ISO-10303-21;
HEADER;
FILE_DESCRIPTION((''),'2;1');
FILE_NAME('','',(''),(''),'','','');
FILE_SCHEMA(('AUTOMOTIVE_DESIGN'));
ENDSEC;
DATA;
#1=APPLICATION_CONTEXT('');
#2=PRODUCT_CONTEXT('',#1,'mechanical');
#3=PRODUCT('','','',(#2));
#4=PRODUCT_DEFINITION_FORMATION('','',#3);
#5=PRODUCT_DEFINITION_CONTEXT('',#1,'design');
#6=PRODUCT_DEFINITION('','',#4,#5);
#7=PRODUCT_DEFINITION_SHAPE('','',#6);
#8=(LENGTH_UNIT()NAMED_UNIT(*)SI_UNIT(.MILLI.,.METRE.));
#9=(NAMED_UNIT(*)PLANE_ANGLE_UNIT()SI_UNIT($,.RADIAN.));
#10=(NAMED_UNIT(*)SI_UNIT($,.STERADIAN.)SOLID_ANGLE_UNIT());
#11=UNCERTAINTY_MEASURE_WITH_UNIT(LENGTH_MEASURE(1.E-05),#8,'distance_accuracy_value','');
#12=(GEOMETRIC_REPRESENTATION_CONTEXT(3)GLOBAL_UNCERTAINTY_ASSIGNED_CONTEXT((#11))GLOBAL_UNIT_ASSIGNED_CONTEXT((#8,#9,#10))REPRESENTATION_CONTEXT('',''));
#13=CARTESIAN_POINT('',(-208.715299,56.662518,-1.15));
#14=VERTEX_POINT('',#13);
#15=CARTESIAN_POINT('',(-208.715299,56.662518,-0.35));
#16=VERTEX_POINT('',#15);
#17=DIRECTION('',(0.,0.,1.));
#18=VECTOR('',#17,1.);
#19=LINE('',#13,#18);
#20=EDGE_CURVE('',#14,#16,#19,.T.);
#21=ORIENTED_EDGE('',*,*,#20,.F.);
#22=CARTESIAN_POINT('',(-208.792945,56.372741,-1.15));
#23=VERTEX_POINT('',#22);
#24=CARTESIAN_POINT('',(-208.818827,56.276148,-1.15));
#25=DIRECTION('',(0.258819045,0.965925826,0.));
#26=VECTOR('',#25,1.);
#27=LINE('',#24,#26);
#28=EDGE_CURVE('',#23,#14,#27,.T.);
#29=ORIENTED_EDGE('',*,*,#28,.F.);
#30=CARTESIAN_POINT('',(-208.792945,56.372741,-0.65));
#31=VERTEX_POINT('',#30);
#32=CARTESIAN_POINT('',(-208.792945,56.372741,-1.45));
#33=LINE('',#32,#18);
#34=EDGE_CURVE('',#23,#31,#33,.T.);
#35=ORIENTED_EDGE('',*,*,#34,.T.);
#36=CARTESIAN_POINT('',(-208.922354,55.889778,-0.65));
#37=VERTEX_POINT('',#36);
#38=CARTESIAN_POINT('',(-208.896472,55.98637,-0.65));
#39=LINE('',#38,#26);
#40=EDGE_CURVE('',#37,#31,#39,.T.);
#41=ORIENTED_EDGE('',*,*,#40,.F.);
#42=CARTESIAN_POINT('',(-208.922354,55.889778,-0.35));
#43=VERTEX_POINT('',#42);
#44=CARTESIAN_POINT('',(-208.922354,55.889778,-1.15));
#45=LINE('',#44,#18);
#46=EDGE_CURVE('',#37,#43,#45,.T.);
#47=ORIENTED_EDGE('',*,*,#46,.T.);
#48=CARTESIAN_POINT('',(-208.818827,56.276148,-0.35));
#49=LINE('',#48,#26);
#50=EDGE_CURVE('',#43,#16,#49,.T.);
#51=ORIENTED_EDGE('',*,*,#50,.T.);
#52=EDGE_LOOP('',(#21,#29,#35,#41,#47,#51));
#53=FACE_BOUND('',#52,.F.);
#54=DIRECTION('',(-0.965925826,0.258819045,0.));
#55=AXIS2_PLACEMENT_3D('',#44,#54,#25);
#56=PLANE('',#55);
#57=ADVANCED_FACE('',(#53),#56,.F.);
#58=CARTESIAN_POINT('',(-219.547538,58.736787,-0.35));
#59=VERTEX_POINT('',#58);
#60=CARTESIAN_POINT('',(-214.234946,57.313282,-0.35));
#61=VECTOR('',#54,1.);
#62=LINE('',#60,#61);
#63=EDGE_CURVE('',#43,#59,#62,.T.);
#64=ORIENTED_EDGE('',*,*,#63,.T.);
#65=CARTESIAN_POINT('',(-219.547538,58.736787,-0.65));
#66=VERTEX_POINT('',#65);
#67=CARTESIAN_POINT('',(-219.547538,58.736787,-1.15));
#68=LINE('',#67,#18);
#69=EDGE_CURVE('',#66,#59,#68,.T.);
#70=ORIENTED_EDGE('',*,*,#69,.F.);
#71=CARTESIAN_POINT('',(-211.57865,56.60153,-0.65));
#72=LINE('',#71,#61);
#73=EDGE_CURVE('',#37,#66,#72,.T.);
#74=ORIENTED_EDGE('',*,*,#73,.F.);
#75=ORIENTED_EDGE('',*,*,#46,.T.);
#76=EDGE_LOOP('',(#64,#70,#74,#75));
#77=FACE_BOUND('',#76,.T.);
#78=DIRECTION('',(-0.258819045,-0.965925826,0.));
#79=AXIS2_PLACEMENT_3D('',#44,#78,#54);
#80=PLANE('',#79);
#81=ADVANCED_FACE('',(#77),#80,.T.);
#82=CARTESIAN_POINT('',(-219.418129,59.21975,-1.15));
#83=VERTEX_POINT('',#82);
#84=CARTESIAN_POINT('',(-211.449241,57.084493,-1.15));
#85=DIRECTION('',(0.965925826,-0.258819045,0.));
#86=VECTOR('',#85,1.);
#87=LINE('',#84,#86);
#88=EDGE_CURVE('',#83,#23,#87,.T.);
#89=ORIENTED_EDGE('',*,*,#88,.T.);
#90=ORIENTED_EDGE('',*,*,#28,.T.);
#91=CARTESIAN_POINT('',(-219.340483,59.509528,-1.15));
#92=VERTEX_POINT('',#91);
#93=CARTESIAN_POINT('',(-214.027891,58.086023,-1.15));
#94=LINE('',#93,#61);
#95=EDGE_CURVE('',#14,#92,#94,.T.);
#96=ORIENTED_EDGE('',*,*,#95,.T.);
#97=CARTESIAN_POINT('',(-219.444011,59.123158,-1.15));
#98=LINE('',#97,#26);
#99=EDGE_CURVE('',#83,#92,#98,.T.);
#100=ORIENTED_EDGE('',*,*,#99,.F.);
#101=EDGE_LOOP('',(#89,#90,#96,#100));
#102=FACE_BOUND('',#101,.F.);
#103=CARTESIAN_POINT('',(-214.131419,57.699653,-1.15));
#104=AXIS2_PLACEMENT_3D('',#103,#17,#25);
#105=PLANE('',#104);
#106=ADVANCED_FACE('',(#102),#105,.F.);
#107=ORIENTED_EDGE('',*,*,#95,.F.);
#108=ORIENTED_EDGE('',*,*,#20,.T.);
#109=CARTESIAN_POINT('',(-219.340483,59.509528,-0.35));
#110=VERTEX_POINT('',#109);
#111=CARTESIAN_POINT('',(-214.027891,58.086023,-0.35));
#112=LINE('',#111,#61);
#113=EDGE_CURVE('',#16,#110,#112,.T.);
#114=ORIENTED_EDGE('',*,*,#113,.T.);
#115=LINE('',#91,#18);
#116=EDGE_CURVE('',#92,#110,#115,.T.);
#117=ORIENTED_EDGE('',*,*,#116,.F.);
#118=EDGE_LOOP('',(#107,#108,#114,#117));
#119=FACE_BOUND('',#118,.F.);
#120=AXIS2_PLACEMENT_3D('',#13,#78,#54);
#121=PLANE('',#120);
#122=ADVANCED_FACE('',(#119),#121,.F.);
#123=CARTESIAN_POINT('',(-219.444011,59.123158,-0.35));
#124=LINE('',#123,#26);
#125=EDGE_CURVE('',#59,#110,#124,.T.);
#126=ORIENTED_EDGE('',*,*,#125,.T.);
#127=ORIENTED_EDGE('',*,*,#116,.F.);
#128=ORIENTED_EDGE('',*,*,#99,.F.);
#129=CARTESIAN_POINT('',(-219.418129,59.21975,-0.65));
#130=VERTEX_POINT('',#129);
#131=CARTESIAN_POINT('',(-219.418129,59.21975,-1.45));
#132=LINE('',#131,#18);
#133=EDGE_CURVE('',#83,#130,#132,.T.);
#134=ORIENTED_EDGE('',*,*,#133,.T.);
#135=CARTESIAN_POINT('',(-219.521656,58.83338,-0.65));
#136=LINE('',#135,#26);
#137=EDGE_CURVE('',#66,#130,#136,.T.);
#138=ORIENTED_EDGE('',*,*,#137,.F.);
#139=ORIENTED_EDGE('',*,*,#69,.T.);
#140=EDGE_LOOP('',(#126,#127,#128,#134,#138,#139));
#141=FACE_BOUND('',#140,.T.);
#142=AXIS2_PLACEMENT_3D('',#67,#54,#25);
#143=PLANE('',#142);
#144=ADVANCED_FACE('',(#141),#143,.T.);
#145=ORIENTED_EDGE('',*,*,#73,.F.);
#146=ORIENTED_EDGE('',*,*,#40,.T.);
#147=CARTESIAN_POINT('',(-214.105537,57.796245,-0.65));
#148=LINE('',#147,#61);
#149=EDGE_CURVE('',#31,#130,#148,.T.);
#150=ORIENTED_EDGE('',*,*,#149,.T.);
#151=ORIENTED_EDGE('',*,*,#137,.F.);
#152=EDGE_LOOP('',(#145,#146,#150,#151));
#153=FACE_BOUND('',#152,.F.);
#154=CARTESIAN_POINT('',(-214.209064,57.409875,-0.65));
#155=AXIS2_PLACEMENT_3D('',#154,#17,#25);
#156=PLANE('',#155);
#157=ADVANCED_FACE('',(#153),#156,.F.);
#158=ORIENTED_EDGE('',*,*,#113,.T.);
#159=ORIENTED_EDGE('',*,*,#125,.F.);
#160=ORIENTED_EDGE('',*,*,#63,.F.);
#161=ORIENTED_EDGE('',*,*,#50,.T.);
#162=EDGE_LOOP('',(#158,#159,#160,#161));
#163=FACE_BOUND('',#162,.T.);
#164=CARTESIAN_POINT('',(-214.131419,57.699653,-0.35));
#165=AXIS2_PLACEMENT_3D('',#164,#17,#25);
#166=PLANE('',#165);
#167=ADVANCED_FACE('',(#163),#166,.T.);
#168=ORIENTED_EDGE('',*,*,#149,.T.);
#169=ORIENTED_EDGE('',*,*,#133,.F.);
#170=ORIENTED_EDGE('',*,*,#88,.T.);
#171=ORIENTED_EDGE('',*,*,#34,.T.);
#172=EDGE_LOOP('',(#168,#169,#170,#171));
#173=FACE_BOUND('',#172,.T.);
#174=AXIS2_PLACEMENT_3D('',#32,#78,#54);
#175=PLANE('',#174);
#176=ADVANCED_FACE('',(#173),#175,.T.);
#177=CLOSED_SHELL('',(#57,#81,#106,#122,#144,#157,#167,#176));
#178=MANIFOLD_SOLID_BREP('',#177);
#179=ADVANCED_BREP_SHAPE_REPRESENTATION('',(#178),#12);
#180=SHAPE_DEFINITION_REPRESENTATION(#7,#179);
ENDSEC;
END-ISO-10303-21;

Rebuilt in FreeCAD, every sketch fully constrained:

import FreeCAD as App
import Part
import Sketcher
from FreeCAD import Vector

doc = App.newDocument("Part")
params = doc.addObject("Spreadsheet::Sheet", "Params")
for row, (alias, value) in enumerate([
    ("sketch1_height", "11 mm"),
    ("sketch1_width", "0.8 mm"),
    ("pad1_length", "0.8 mm"),
    ("sketch2_height", "11 mm"),
    ("sketch2_width", "0.8 mm"),
    ("pad2_length", "0.8 mm"),
], start=1):
    params.set(f"A{row}", alias)
    params.set(f"B{row}", "=" + value)
    params.setAlias(f"B{row}", alias)

body = doc.addObject("PartDesign::Body", "Body")

# Sketch on XY plane
sketch1 = body.newObject("Sketcher::SketchObject", "Sketch")
sketch1.AttachmentSupport = (doc.getObject("XY_Plane"), [""])
sketch1.MapMode = "FlatFace"
sketch1.addGeometry([
    Part.LineSegment(Vector(0, 11, 0), Vector(0, 0, 0)),
    Part.LineSegment(Vector(0, 0, 0), Vector(0.8, 0, 0)),
    Part.LineSegment(Vector(0.8, 0, 0), Vector(0.8, 11, 0)),
    Part.LineSegment(Vector(0.8, 11, 0), Vector(0, 11, 0)),
], False)
sketch1.addConstraint([
    Sketcher.Constraint("Coincident", 0, 2, 1, 1),
    Sketcher.Constraint("Coincident", 1, 2, 2, 1),
    Sketcher.Constraint("Coincident", 2, 2, 3, 1),
    Sketcher.Constraint("Coincident", 3, 2, 0, 1),
    Sketcher.Constraint("Vertical", 0),
    Sketcher.Constraint("Horizontal", 1),
    Sketcher.Constraint("Vertical", 2),
    Sketcher.Constraint("Horizontal", 3),
    Sketcher.Constraint("Coincident", 0, 2, -1, 1),
    Sketcher.Constraint("DistanceY", 0, 2, 0, 1, 11.0),
    Sketcher.Constraint("DistanceX", 1, 1, 1, 2, 0.8),
])
sketch1.setExpression("Constraints[9]", "Params.sketch1_height")
sketch1.setExpression("Constraints[10]", "Params.sketch1_width")
pad1 = body.newObject("PartDesign::Pad", "Pad")
pad1.Profile = sketch1
pad1.setExpression("Length", "Params.pad1_length")
body2 = doc.addObject("PartDesign::Body", "Body001")

# Sketch on XY plane
sketch2 = body2.newObject("Sketcher::SketchObject", "Sketch001")
sketch2.AttachmentSupport = (doc.getObject("XY_Plane001"), [""])
sketch2.MapMode = "FlatFace"
sketch2.AttachmentOffset = App.Placement(Vector(0, 0, 0.3), App.Rotation())
sketch2.addGeometry([
    Part.LineSegment(Vector(0.3, 11, 0), Vector(0.3, 0, 0)),
    Part.LineSegment(Vector(0.3, 0, 0), Vector(1.1, 0, 0)),
    Part.LineSegment(Vector(1.1, 0, 0), Vector(1.1, 11, 0)),
    Part.LineSegment(Vector(1.1, 11, 0), Vector(0.3, 11, 0)),
], False)
sketch2.addConstraint([
    Sketcher.Constraint("Coincident", 0, 2, 1, 1),
    Sketcher.Constraint("Coincident", 1, 2, 2, 1),
    Sketcher.Constraint("Coincident", 2, 2, 3, 1),
    Sketcher.Constraint("Coincident", 3, 2, 0, 1),
    Sketcher.Constraint("Vertical", 0),
    Sketcher.Constraint("Horizontal", 1),
    Sketcher.Constraint("Vertical", 2),
    Sketcher.Constraint("Horizontal", 3),
    Sketcher.Constraint("PointOnObject", 0, 2, -1),
    Sketcher.Constraint("DistanceY", 0, 2, 0, 1, 11.0),
    Sketcher.Constraint("DistanceX", 1, 1, 1, 2, 0.8),
    Sketcher.Constraint("DistanceX", -1, 1, 0, 2, 0.3),
])
sketch2.setExpression("Constraints[9]", "Params.sketch2_height")
sketch2.setExpression("Constraints[10]", "Params.sketch2_width")
pad2 = body2.newObject("PartDesign::Pad", "Pad001")
pad2.Profile = sketch2
pad2.setExpression("Length", "Params.pad2_length")
doc.recompute()

boolean = body2.newObject("PartDesign::Boolean", "Boolean")
boolean.Type = "Cut"
boolean.addObjects([body])
body3 = doc.addObject("PartDesign::Body", "Body002")
doc.recompute()

body2.Placement = App.Placement(Vector(-209, 55.6, -1.45), App.Rotation(Vector(0, 0, 1), 75))
boolean2 = body3.newObject("PartDesign::Boolean", "Boolean001")
boolean2.Type = "Fuse"
boolean2.addObjects([body2])

doc.recompute()
